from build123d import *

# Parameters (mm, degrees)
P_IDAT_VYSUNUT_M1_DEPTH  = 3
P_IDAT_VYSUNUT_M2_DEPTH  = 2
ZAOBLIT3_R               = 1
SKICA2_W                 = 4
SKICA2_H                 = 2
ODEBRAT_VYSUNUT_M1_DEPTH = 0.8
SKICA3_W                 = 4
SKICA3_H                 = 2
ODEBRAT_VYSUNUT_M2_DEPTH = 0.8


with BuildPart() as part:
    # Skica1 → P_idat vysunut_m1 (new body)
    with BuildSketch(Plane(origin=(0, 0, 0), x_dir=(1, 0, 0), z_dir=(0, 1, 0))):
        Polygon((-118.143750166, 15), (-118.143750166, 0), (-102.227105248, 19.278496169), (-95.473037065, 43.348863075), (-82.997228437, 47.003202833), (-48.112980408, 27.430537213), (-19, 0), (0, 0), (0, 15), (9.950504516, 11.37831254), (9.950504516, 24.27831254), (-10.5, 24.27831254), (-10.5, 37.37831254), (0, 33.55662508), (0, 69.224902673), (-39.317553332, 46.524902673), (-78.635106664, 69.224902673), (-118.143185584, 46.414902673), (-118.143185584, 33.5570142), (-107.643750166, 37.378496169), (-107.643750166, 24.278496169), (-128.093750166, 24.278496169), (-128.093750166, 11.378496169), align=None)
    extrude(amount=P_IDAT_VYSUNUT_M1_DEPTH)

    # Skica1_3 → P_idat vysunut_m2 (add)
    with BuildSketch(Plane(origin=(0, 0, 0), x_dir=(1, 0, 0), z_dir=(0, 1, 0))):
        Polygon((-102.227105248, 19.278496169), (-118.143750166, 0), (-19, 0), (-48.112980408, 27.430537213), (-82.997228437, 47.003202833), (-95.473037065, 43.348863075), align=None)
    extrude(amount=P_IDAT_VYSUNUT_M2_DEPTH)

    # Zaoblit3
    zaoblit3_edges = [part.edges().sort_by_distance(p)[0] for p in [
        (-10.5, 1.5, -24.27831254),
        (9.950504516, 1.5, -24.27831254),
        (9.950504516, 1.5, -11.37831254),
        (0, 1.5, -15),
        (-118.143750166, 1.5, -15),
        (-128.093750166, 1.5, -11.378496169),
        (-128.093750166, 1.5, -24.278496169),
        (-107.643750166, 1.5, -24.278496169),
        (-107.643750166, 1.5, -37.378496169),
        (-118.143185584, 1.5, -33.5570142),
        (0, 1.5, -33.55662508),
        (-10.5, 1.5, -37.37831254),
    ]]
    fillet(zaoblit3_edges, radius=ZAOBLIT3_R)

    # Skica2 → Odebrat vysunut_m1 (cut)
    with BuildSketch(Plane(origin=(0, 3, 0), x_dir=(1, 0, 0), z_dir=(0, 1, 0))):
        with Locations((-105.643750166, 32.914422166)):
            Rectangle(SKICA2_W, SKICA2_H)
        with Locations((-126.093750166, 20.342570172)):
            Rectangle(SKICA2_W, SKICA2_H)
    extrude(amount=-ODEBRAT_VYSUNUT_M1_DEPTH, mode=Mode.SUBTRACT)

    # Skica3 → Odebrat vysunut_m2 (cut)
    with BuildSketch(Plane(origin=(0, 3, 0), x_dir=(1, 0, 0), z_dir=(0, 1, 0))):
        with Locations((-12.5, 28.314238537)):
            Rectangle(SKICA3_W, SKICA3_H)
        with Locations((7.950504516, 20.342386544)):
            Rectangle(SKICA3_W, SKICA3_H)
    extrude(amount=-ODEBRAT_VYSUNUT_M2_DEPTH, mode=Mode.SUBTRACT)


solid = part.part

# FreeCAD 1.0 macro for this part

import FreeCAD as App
import Part
import Sketcher

V = App.Vector
Q = App.Units.Quantity


def edges_at(feature, points):
    """Names of the edges that pass closest to the given points."""
    edges = feature.Shape.Edges
    near = lambda p: min(range(len(edges)), key=lambda i: edges[i].distToShape(Part.Vertex(*p))[0])
    return sorted({f"Edge{near(p) + 1}" for p in points})


def add_polygon(sketch, points):
    """Adds a closed chain of lines whose ends are joined by coincident constraints."""
    first, n = sketch.GeometryCount, len(points)
    for a, b in zip(points, points[1:] + points[:1]):
        sketch.addGeometry(Part.LineSegment(App.Vector(*a, 0), App.Vector(*b, 0)), False)
    for i in range(n):
        sketch.addConstraint(Sketcher.Constraint("Coincident", first + i, 2, first + (i + 1) % n, 1))

doc = App.newDocument("Part")
params = doc.addObject("Spreadsheet::Sheet", "Params")
for row, (alias, value) in enumerate([
    ("sketch1_width", "19 mm"),
    ("sketch1_height", "15 mm"),
    ("sketch1_length", "25 mm"),
    ("sketch1_length2", "13 mm"),
    ("sketch1_length3", "40 mm"),
    ("pad1_length", "3 mm"),
    ("sketch2_length", "25 mm"),
    ("sketch2_length2", "40 mm"),
    ("sketch2_length3", "13 mm"),
    ("pad2_length", "2 mm"),
    ("fillet_radius", "1 mm"),
    ("sketch3_width", "4 mm"),
    ("sketch3_height", "2 mm"),
    ("pocket1_length", "0.8 mm"),
    ("sketch4_width", "4 mm"),
    ("sketch4_height", "2 mm"),
    ("pocket2_length", "0.8 mm"),
], start=1):
    params.set(f"A{row}", alias)
    params.set(f"B{row}", "=" + value)
    params.setAlias(f"B{row}", alias)

body = doc.addObject("PartDesign::Body", "Body")

# Sketch on XZ plane
sketch1 = body.newObject("Sketcher::SketchObject", "Sketch")
sketch1.AttachmentSupport = (doc.getObject("XZ_Plane"), [""])
sketch1.MapMode = "FlatFace"
add_polygon(sketch1, [(-118, -15), (-118, 0), (-102, -19), (-95, -43), (-83, -47), (-48, -27), (-19, 0), (0, 0), (0, -15), (10, -11), (10, -24), (-10, -24), (-10, -37), (0, -34), (0, -69), (-39, -47), (-79, -69), (-118, -46), (-118, -34), (-108, -37), (-108, -24), (-128, -24), (-128, -11)])  # lines 0-22
sketch1.addConstraint([
    Sketcher.Constraint("Vertical", 0),
    Sketcher.Constraint("Horizontal", 6),
    Sketcher.Constraint("Vertical", 7),
    Sketcher.Constraint("Vertical", 9),
    Sketcher.Constraint("Horizontal", 10),
    Sketcher.Constraint("Vertical", 11),
    Sketcher.Constraint("Vertical", 13),
    Sketcher.Constraint("Vertical", 17),
    Sketcher.Constraint("Vertical", 19),
    Sketcher.Constraint("Horizontal", 20),
    Sketcher.Constraint("Vertical", 21),
    Sketcher.Constraint("Coincident", 6, 2, -1, 1),
    Sketcher.Constraint("PointOnObject", 0, 2, -1),
    Sketcher.Constraint("PointOnObject", 12, 2, -2),
    Sketcher.Constraint("Parallel", 8, 12),
    Sketcher.Constraint("Parallel", 14, 16),
    Sketcher.Constraint("Parallel", 18, 22),
    Sketcher.Constraint("Horizontal", 13, 2, 15, 2),
    Sketcher.Constraint("Horizontal", 7, 2, 22, 2),
    Sketcher.Constraint("Equal", 11, 19),
    Sketcher.Constraint("Equal", 9, 21),
    Sketcher.Constraint("Equal", 1, 2),
    Sketcher.Constraint("Equal", 4, 5),
    Sketcher.Constraint("Equal", 14, 15),
    Sketcher.Constraint("DistanceX", 6, 1, 6, 2, 19.0),
    Sketcher.Constraint("DistanceY", 0, 1, 0, 2, 15.0),
    Sketcher.Constraint("Angle", 8, Q("20 deg")),
    Sketcher.Constraint("Angle", 14, Q("150 deg")),
    Sketcher.Constraint("Angle", 18, Q("-20 deg")),
    Sketcher.Constraint("Distance", 1, 25.0),
    Sketcher.Constraint("Distance", 3, 13.0),
    Sketcher.Constraint("Distance", 4, 40.0),
    Sketcher.Constraint("DistanceY", 9, 2, 9, 1, 12.9),
    Sketcher.Constraint("DistanceY", 11, 2, 11, 1, 13.1),
    Sketcher.Constraint("DistanceY", 19, 2, 1, 2, 5.0),
    Sketcher.Constraint("Distance", 14, 45.4),
    Sketcher.Constraint("DistanceX", 20, 2, 20, 1, 20.45),
    Sketcher.Constraint("DistanceX", 10, 2, -1, 1, 10.5),
    Sketcher.Constraint("DistanceX", 22, 2, 19, 2, 10.5),
    Sketcher.Constraint("Distance", 16, 45.62),
    Sketcher.Constraint("DistanceX", 1, 2, 15, 2, 23.591999),
    Sketcher.Constraint("DistanceY", 17, 1, 17, 2, 12.857888),
    Sketcher.Constraint("DistanceY", 3, 2, 14, 2, 0.4783),
    Sketcher.Constraint("DistanceX", 10, 2, 10, 1, 20.450505),
    Sketcher.Constraint("DistanceX", 3, 2, -1, 1, 82.997228),
])
sketch1.setExpression("Constraints[47]", "Params.sketch1_width")
sketch1.setExpression("Constraints[48]", "Params.sketch1_height")
sketch1.setExpression("Constraints[52]", "Params.sketch1_length")
sketch1.setExpression("Constraints[53]", "Params.sketch1_length2")
sketch1.setExpression("Constraints[54]", "Params.sketch1_length3")
pad1 = body.newObject("PartDesign::Pad", "Pad")
pad1.Profile = sketch1
pad1.setExpression("Length", "Params.pad1_length")
pad1.Reversed = True

# Sketch on XZ plane
sketch2 = body.newObject("Sketcher::SketchObject", "Sketch001")
sketch2.AttachmentSupport = (doc.getObject("XZ_Plane"), [""])
sketch2.MapMode = "FlatFace"
add_polygon(sketch2, [(-102, -19), (-118, 0), (-19, 0), (-48, -27), (-83, -47), (-95, -43)])  # lines 0-5
sketch2.addConstraint([
    Sketcher.Constraint("Horizontal", 1),
    Sketcher.Constraint("PointOnObject", 0, 2, -1),
    Sketcher.Constraint("Equal", 2, 3),
    Sketcher.Constraint("Equal", 0, 5),
    Sketcher.Constraint("Distance", 0, 25.0),
    Sketcher.Constraint("Distance", 2, 40.0),
    Sketcher.Constraint("Distance", 4, 13.0),
    Sketcher.Constraint("DistanceX", 1, 2, -1, 1, 19.0),
    Sketcher.Constraint("DistanceX", 1, 1, 1, 2, 99.14375),
    Sketcher.Constraint("DistanceX", 2, 2, -1, 1, 48.11298),
    Sketcher.Constraint("DistanceX", 3, 2, -1, 1, 82.997228),
    Sketcher.Constraint("DistanceX", 4, 2, 3, 2, 12.475809),
])
sketch2.setExpression("Constraints[10]", "Params.sketch2_length")
sketch2.setExpression("Constraints[11]", "Params.sketch2_length2")
sketch2.setExpression("Constraints[12]", "Params.sketch2_length3")
pad2 = body.newObject("PartDesign::Pad", "Pad001")
pad2.Profile = sketch2
pad2.setExpression("Length", "Params.pad2_length")
pad2.Reversed = True
doc.recompute()

fillet = body.newObject("PartDesign::Fillet", "Fillet")
fillet.Base = (pad2, edges_at(pad2, [
    (-10.5, 1.5, -24.278),
    (9.951, 1.5, -24.278),
    (9.951, 1.5, -11.378),
    (0, 1.5, -15),
    (-118.144, 1.5, -15),
    (-128.094, 1.5, -11.378),
    (-128.094, 1.5, -24.278),
    (-107.644, 1.5, -24.278),
    (-107.644, 1.5, -37.378),
    (-118.143, 1.5, -33.557),
    (0, 1.5, -33.557),
    (-10.5, 1.5, -37.378),
]))
fillet.setExpression("Radius", "Params.fillet_radius")

# Sketch on XZ plane
sketch3 = body.newObject("Sketcher::SketchObject", "Sketch002")
sketch3.AttachmentSupport = (doc.getObject("XZ_Plane"), [""])
sketch3.MapMode = "FlatFace"
sketch3.AttachmentOffset = App.Placement(V(0, 0, -3), App.Rotation())
add_polygon(sketch3, [(-107.6, -33.9), (-107.6, -31.9), (-103.6, -31.9), (-103.6, -33.9)])  # lines 0-3
add_polygon(sketch3, [(-128.1, -21.3), (-128.1, -19.3), (-124.1, -19.3), (-124.1, -21.3)])  # lines 4-7
sketch3.addConstraint([
    Sketcher.Constraint("Vertical", 0),
    Sketcher.Constraint("Horizontal", 1),
    Sketcher.Constraint("Vertical", 2),
    Sketcher.Constraint("Horizontal", 3),
    Sketcher.Constraint("Vertical", 4),
    Sketcher.Constraint("Horizontal", 5),
    Sketcher.Constraint("Vertical", 6),
    Sketcher.Constraint("Horizontal", 7),
    Sketcher.Constraint("Equal", 3, 5),
    Sketcher.Constraint("Equal", 2, 4),
    Sketcher.Constraint("DistanceX", 1, 1, 1, 2, 4.0),
    Sketcher.Constraint("DistanceY", 0, 1, 0, 2, 2.0),
    Sketcher.Constraint("DistanceX", 4, 2, 0, 2, 20.45),
    Sketcher.Constraint("DistanceX", 0, 2, -1, 1, 107.64375),
    Sketcher.Constraint("DistanceY", 4, 2, -1, 1, 19.34257),
    Sketcher.Constraint("DistanceY", 0, 2, 4, 2, 12.571852),
])
sketch3.setExpression("Constraints[18]", "Params.sketch3_width")
sketch3.setExpression("Constraints[19]", "Params.sketch3_height")
pocket1 = body.newObject("PartDesign::Pocket", "Pocket")
pocket1.Profile = sketch3
pocket1.setExpression("Length", "Params.pocket1_length")
pocket1.Reversed = True

# Sketch on XZ plane
sketch4 = body.newObject("Sketcher::SketchObject", "Sketch003")
sketch4.AttachmentSupport = (doc.getObject("XZ_Plane"), [""])
sketch4.MapMode = "FlatFace"
sketch4.AttachmentOffset = App.Placement(V(0, 0, -3), App.Rotation())
add_polygon(sketch4, [(-14.5, -29.3), (-14.5, -27.3), (-10.5, -27.3), (-10.5, -29.3)])  # lines 0-3
add_polygon(sketch4, [(6, -21.3), (6, -19.3), (10, -19.3), (10, -21.3)])  # lines 4-7
sketch4.addConstraint([
    Sketcher.Constraint("Vertical", 0),
    Sketcher.Constraint("Horizontal", 1),
    Sketcher.Constraint("Vertical", 2),
    Sketcher.Constraint("Horizontal", 3),
    Sketcher.Constraint("Vertical", 4),
    Sketcher.Constraint("Horizontal", 5),
    Sketcher.Constraint("Vertical", 6),
    Sketcher.Constraint("Horizontal", 7),
    Sketcher.Constraint("Equal", 3, 5),
    Sketcher.Constraint("Equal", 2, 4),
    Sketcher.Constraint("DistanceX", 1, 1, 1, 2, 4.0),
    Sketcher.Constraint("DistanceY", 0, 1, 0, 2, 2.0),
    Sketcher.Constraint("DistanceX", 0, 2, -1, 1, 14.5),
    Sketcher.Constraint("DistanceY", 0, 2, -1, 1, 27.314239),
    Sketcher.Constraint("DistanceY", 1, 2, 4, 2, 7.971852),
    Sketcher.Constraint("DistanceX", -1, 1, 4, 2, 5.950505),
])
sketch4.setExpression("Constraints[18]", "Params.sketch4_width")
sketch4.setExpression("Constraints[19]", "Params.sketch4_height")
pocket2 = body.newObject("PartDesign::Pocket", "Pocket001")
pocket2.Profile = sketch4
pocket2.setExpression("Length", "Params.pocket2_length")
pocket2.Reversed = True

doc.recompute()
